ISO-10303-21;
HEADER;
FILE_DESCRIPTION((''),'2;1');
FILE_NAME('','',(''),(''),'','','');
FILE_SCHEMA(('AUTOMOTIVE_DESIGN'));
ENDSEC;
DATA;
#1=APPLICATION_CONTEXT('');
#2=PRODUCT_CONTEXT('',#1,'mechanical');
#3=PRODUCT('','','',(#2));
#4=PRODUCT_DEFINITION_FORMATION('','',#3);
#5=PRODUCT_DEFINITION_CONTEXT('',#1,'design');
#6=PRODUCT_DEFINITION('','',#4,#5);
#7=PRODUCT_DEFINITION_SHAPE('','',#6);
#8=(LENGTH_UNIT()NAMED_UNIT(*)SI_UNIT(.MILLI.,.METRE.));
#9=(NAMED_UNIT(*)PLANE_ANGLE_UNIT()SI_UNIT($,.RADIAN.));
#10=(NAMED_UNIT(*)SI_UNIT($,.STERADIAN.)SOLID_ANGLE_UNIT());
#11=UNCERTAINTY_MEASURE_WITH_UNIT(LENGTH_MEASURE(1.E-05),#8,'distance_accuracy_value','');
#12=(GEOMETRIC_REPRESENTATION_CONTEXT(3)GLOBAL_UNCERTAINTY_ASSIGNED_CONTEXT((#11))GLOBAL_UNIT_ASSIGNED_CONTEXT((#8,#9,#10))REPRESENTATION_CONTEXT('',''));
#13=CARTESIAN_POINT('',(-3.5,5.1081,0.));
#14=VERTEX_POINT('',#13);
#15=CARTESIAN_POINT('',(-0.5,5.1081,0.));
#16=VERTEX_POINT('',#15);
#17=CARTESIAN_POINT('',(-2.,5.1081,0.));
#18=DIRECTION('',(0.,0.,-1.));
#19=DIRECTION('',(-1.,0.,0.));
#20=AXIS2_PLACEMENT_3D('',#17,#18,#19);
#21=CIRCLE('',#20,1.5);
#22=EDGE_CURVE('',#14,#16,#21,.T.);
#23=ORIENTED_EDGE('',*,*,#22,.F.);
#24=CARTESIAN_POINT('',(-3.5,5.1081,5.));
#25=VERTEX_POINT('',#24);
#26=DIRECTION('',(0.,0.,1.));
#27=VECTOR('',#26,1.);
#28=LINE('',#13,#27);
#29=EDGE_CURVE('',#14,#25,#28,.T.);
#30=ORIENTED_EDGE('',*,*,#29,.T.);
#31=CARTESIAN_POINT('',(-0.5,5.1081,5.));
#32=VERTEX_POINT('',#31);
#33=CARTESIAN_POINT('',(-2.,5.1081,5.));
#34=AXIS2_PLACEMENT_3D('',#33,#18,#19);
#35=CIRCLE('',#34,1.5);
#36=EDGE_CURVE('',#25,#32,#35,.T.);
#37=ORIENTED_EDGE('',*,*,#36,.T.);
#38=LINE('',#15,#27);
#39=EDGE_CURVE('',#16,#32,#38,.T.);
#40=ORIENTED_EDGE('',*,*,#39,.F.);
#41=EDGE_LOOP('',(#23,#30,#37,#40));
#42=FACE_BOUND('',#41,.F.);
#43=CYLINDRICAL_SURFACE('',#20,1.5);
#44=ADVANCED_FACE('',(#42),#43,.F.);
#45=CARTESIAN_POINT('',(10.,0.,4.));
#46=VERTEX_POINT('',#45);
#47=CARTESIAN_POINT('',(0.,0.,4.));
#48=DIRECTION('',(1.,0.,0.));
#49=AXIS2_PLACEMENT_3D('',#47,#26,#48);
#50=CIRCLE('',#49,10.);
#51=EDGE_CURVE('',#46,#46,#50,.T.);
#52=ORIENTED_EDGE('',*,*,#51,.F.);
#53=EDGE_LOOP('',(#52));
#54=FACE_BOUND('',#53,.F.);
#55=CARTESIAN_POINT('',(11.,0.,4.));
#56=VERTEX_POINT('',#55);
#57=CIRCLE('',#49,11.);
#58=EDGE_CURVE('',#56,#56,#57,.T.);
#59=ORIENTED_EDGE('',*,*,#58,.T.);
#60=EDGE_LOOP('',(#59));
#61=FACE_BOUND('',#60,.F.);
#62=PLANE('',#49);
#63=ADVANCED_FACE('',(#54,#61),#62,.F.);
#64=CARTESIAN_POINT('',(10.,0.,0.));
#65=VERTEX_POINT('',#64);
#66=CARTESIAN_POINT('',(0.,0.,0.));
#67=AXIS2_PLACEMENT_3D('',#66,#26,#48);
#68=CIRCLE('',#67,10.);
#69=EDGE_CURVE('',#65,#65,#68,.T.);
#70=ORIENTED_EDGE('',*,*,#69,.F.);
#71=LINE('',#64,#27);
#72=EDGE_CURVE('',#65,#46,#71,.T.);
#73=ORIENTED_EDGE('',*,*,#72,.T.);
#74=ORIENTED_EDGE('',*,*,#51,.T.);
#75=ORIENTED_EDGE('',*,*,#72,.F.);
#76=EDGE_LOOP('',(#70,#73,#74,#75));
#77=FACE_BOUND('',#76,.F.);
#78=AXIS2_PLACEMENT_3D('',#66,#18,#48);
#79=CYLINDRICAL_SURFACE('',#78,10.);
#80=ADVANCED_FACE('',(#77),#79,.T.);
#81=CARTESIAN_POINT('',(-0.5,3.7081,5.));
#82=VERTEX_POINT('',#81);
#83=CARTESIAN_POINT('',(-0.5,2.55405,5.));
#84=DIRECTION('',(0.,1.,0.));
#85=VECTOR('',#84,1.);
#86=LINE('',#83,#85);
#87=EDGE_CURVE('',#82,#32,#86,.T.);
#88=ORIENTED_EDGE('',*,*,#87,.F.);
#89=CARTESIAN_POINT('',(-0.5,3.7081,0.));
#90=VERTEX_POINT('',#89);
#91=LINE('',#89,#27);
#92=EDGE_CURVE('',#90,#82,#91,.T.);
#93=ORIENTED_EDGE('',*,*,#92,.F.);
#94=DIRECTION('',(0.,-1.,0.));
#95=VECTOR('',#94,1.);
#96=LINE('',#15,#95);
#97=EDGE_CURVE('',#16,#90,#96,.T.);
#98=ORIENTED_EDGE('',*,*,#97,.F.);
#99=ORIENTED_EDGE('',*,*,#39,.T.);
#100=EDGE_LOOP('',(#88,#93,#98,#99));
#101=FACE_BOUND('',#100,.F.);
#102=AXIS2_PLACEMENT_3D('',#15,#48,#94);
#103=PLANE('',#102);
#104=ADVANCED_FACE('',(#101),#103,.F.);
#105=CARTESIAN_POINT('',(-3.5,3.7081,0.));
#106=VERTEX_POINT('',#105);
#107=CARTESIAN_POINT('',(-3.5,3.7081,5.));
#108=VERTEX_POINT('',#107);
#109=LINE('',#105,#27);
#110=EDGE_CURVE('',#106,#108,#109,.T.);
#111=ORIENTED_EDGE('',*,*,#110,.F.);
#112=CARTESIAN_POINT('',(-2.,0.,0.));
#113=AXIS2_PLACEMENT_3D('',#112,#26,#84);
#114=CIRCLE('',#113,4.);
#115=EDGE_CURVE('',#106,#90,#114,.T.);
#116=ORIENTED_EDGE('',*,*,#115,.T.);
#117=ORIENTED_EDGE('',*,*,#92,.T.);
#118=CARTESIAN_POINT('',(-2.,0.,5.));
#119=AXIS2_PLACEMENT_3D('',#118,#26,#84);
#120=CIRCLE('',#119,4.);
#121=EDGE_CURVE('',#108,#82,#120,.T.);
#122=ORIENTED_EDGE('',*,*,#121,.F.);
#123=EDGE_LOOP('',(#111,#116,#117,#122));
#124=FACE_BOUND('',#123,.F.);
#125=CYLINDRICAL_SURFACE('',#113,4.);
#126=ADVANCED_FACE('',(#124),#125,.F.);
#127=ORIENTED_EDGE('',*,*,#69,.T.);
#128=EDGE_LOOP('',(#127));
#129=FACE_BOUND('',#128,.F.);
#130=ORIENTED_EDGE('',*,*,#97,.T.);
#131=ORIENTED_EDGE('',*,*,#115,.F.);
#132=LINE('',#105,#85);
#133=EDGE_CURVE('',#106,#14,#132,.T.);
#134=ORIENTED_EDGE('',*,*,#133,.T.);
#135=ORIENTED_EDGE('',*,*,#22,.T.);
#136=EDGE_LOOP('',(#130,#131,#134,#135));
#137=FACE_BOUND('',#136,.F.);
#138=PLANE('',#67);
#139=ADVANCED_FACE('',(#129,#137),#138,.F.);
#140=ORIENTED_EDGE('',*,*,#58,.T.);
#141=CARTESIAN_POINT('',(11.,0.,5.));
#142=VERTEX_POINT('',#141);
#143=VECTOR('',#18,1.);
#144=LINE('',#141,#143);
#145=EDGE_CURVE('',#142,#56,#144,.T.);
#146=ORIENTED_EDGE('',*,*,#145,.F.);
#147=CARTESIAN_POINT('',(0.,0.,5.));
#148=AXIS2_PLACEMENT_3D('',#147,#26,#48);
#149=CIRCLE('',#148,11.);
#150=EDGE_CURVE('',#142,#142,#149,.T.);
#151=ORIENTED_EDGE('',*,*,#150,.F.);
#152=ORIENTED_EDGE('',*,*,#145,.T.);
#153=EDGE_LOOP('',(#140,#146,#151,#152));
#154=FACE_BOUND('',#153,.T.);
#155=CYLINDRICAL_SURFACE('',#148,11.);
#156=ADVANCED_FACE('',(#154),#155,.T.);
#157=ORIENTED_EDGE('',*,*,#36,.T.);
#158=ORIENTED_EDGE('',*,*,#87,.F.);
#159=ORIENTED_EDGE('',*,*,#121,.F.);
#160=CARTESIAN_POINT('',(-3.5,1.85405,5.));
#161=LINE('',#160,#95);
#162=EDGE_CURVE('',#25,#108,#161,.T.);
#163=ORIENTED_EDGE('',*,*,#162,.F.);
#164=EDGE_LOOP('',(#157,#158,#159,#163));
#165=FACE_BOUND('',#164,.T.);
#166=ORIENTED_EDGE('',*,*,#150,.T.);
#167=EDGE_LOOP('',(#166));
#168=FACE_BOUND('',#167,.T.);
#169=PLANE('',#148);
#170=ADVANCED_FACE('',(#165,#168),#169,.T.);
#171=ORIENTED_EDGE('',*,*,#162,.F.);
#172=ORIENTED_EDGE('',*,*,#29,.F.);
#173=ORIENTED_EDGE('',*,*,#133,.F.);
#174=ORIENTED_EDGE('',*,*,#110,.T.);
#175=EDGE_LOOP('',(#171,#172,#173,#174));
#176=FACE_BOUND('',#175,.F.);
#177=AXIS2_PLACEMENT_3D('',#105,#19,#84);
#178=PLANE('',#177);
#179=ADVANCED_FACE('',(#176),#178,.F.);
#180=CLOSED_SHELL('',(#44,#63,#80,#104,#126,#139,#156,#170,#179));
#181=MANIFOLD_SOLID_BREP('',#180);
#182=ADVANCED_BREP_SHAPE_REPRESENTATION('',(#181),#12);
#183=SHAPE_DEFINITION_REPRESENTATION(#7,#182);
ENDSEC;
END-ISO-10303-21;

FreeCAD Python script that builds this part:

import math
import FreeCAD as App
import Part
import Sketcher
from FreeCAD import Vector

doc = App.newDocument("Part")
body = doc.addObject("PartDesign::Body", "Body")

sketch1 = body.newObject("Sketcher::SketchObject", "Sketch")
sketch1.AttachmentSupport = (doc.getObject("XY_Plane"), [""])
sketch1.MapMode = "FlatFace"
sketch1.addGeometry(Part.Circle(Vector(0, 0, 0), Vector(0, 0, 1), 10), False)
sketch1.addConstraint(Sketcher.Constraint("Coincident", 0, 3, -1, 1))
sketch1.addConstraint(Sketcher.Constraint("Diameter", 0, 20.0))
pad1 = body.newObject("PartDesign::Pad", "Pad")
pad1.Profile = sketch1
pad1.Length = 5

sketch2 = body.newObject("Sketcher::SketchObject", "Sketch001")
sketch2.AttachmentSupport = (doc.getObject("XY_Plane"), [""])
sketch2.MapMode = "FlatFace"
sketch2.AttachmentOffset = App.Placement(Vector(0, 0, 5), App.Rotation())
sketch2.addGeometry(Part.Circle(Vector(0, 0, 0), Vector(0, 0, 1), 11), False)
sketch2.addGeometry(Part.Circle(Vector(0, 0, 0), Vector(0, 0, 1), 10), False)
sketch2.addConstraint(Sketcher.Constraint("Coincident", 0, 3, -1, 1))
sketch2.addConstraint(Sketcher.Constraint("Coincident", 1, 3, -1, 1))
sketch2.addConstraint(Sketcher.Constraint("Diameter", 0, 22.0))
sketch2.addConstraint(Sketcher.Constraint("Diameter", 1, 20.0))
pad2 = body.newObject("PartDesign::Pad", "Pad001")
pad2.Profile = sketch2
pad2.Length = 1
pad2.Reversed = True

sketch3 = body.newObject("Sketcher::SketchObject", "Sketch002")
sketch3.AttachmentSupport = (doc.getObject("XY_Plane"), [""])
sketch3.MapMode = "FlatFace"
sketch3.addGeometry(Part.Circle(Vector(-2, 0, 0), Vector(0, 0, 1), 4), False)
sketch3.addConstraint(Sketcher.Constraint("PointOnObject", 0, 3, -1))
sketch3.addConstraint(Sketcher.Constraint("Diameter", 0, 8.0))
sketch3.addConstraint(Sketcher.Constraint("DistanceX", 0, 3, -1, 1, 2.0))
doc.recompute()
hole = body.newObject("PartDesign::Hole", "Hole")
hole.Profile = sketch3
hole.ThreadType = "None"
hole.Diameter = 8
hole.DepthType = "ThroughAll"
hole.Reversed = True

sketch4 = body.newObject("Sketcher::SketchObject", "Sketch003")
sketch4.AttachmentSupport = (doc.getObject("XY_Plane"), [""])
sketch4.MapMode = "FlatFace"
sketch4.addGeometry(Part.LineSegment(Vector(-3.5, 3.7, 0), Vector(-3.5, 5.1, 0)), False)
sketch4.addGeometry(Part.ArcOfCircle(Part.Circle(Vector(-2, 5.1, 0), Vector(0, 0, 1), 1.5), math.radians(0), math.radians(180)), False)
sketch4.addGeometry(Part.LineSegment(Vector(-0.5, 5.1, 0), Vector(-0.5, 3.7, 0)), False)
sketch4.addGeometry(Part.LineSegment(Vector(-0.5, 3.7, 0), Vector(-3.5, 3.7, 0)), False)
sketch4.addConstraint(Sketcher.Constraint("Tangent", 0, 2, 1, 2))
sketch4.addConstraint(Sketcher.Constraint("Tangent", 1, 1, 2, 1))
sketch4.addConstraint(Sketcher.Constraint("Coincident", 2, 2, 3, 1))
sketch4.addConstraint(Sketcher.Constraint("Coincident", 3, 2, 0, 1))
sketch4.addConstraint(Sketcher.Constraint("Vertical", 0))
sketch4.addConstraint(Sketcher.Constraint("Vertical", 2))
sketch4.addConstraint(Sketcher.Constraint("Horizontal", 3))
sketch4.addConstraint(Sketcher.Constraint("Radius", 1, 1.5))
sketch4.addConstraint(Sketcher.Constraint("DistanceY", 0, 1, 0, 2, 1.4))
sketch4.addConstraint(Sketcher.Constraint("DistanceX", 1, 3, -1, 1, 2.0))
sketch4.addConstraint(Sketcher.Constraint("DistanceY", -1, 1, 1, 3, 5.108))
pocket1 = body.newObject("PartDesign::Pocket", "Pocket")
pocket1.Profile = sketch4
pocket1.Type = "ThroughAll"
pocket1.Reversed = True

doc.recompute()
